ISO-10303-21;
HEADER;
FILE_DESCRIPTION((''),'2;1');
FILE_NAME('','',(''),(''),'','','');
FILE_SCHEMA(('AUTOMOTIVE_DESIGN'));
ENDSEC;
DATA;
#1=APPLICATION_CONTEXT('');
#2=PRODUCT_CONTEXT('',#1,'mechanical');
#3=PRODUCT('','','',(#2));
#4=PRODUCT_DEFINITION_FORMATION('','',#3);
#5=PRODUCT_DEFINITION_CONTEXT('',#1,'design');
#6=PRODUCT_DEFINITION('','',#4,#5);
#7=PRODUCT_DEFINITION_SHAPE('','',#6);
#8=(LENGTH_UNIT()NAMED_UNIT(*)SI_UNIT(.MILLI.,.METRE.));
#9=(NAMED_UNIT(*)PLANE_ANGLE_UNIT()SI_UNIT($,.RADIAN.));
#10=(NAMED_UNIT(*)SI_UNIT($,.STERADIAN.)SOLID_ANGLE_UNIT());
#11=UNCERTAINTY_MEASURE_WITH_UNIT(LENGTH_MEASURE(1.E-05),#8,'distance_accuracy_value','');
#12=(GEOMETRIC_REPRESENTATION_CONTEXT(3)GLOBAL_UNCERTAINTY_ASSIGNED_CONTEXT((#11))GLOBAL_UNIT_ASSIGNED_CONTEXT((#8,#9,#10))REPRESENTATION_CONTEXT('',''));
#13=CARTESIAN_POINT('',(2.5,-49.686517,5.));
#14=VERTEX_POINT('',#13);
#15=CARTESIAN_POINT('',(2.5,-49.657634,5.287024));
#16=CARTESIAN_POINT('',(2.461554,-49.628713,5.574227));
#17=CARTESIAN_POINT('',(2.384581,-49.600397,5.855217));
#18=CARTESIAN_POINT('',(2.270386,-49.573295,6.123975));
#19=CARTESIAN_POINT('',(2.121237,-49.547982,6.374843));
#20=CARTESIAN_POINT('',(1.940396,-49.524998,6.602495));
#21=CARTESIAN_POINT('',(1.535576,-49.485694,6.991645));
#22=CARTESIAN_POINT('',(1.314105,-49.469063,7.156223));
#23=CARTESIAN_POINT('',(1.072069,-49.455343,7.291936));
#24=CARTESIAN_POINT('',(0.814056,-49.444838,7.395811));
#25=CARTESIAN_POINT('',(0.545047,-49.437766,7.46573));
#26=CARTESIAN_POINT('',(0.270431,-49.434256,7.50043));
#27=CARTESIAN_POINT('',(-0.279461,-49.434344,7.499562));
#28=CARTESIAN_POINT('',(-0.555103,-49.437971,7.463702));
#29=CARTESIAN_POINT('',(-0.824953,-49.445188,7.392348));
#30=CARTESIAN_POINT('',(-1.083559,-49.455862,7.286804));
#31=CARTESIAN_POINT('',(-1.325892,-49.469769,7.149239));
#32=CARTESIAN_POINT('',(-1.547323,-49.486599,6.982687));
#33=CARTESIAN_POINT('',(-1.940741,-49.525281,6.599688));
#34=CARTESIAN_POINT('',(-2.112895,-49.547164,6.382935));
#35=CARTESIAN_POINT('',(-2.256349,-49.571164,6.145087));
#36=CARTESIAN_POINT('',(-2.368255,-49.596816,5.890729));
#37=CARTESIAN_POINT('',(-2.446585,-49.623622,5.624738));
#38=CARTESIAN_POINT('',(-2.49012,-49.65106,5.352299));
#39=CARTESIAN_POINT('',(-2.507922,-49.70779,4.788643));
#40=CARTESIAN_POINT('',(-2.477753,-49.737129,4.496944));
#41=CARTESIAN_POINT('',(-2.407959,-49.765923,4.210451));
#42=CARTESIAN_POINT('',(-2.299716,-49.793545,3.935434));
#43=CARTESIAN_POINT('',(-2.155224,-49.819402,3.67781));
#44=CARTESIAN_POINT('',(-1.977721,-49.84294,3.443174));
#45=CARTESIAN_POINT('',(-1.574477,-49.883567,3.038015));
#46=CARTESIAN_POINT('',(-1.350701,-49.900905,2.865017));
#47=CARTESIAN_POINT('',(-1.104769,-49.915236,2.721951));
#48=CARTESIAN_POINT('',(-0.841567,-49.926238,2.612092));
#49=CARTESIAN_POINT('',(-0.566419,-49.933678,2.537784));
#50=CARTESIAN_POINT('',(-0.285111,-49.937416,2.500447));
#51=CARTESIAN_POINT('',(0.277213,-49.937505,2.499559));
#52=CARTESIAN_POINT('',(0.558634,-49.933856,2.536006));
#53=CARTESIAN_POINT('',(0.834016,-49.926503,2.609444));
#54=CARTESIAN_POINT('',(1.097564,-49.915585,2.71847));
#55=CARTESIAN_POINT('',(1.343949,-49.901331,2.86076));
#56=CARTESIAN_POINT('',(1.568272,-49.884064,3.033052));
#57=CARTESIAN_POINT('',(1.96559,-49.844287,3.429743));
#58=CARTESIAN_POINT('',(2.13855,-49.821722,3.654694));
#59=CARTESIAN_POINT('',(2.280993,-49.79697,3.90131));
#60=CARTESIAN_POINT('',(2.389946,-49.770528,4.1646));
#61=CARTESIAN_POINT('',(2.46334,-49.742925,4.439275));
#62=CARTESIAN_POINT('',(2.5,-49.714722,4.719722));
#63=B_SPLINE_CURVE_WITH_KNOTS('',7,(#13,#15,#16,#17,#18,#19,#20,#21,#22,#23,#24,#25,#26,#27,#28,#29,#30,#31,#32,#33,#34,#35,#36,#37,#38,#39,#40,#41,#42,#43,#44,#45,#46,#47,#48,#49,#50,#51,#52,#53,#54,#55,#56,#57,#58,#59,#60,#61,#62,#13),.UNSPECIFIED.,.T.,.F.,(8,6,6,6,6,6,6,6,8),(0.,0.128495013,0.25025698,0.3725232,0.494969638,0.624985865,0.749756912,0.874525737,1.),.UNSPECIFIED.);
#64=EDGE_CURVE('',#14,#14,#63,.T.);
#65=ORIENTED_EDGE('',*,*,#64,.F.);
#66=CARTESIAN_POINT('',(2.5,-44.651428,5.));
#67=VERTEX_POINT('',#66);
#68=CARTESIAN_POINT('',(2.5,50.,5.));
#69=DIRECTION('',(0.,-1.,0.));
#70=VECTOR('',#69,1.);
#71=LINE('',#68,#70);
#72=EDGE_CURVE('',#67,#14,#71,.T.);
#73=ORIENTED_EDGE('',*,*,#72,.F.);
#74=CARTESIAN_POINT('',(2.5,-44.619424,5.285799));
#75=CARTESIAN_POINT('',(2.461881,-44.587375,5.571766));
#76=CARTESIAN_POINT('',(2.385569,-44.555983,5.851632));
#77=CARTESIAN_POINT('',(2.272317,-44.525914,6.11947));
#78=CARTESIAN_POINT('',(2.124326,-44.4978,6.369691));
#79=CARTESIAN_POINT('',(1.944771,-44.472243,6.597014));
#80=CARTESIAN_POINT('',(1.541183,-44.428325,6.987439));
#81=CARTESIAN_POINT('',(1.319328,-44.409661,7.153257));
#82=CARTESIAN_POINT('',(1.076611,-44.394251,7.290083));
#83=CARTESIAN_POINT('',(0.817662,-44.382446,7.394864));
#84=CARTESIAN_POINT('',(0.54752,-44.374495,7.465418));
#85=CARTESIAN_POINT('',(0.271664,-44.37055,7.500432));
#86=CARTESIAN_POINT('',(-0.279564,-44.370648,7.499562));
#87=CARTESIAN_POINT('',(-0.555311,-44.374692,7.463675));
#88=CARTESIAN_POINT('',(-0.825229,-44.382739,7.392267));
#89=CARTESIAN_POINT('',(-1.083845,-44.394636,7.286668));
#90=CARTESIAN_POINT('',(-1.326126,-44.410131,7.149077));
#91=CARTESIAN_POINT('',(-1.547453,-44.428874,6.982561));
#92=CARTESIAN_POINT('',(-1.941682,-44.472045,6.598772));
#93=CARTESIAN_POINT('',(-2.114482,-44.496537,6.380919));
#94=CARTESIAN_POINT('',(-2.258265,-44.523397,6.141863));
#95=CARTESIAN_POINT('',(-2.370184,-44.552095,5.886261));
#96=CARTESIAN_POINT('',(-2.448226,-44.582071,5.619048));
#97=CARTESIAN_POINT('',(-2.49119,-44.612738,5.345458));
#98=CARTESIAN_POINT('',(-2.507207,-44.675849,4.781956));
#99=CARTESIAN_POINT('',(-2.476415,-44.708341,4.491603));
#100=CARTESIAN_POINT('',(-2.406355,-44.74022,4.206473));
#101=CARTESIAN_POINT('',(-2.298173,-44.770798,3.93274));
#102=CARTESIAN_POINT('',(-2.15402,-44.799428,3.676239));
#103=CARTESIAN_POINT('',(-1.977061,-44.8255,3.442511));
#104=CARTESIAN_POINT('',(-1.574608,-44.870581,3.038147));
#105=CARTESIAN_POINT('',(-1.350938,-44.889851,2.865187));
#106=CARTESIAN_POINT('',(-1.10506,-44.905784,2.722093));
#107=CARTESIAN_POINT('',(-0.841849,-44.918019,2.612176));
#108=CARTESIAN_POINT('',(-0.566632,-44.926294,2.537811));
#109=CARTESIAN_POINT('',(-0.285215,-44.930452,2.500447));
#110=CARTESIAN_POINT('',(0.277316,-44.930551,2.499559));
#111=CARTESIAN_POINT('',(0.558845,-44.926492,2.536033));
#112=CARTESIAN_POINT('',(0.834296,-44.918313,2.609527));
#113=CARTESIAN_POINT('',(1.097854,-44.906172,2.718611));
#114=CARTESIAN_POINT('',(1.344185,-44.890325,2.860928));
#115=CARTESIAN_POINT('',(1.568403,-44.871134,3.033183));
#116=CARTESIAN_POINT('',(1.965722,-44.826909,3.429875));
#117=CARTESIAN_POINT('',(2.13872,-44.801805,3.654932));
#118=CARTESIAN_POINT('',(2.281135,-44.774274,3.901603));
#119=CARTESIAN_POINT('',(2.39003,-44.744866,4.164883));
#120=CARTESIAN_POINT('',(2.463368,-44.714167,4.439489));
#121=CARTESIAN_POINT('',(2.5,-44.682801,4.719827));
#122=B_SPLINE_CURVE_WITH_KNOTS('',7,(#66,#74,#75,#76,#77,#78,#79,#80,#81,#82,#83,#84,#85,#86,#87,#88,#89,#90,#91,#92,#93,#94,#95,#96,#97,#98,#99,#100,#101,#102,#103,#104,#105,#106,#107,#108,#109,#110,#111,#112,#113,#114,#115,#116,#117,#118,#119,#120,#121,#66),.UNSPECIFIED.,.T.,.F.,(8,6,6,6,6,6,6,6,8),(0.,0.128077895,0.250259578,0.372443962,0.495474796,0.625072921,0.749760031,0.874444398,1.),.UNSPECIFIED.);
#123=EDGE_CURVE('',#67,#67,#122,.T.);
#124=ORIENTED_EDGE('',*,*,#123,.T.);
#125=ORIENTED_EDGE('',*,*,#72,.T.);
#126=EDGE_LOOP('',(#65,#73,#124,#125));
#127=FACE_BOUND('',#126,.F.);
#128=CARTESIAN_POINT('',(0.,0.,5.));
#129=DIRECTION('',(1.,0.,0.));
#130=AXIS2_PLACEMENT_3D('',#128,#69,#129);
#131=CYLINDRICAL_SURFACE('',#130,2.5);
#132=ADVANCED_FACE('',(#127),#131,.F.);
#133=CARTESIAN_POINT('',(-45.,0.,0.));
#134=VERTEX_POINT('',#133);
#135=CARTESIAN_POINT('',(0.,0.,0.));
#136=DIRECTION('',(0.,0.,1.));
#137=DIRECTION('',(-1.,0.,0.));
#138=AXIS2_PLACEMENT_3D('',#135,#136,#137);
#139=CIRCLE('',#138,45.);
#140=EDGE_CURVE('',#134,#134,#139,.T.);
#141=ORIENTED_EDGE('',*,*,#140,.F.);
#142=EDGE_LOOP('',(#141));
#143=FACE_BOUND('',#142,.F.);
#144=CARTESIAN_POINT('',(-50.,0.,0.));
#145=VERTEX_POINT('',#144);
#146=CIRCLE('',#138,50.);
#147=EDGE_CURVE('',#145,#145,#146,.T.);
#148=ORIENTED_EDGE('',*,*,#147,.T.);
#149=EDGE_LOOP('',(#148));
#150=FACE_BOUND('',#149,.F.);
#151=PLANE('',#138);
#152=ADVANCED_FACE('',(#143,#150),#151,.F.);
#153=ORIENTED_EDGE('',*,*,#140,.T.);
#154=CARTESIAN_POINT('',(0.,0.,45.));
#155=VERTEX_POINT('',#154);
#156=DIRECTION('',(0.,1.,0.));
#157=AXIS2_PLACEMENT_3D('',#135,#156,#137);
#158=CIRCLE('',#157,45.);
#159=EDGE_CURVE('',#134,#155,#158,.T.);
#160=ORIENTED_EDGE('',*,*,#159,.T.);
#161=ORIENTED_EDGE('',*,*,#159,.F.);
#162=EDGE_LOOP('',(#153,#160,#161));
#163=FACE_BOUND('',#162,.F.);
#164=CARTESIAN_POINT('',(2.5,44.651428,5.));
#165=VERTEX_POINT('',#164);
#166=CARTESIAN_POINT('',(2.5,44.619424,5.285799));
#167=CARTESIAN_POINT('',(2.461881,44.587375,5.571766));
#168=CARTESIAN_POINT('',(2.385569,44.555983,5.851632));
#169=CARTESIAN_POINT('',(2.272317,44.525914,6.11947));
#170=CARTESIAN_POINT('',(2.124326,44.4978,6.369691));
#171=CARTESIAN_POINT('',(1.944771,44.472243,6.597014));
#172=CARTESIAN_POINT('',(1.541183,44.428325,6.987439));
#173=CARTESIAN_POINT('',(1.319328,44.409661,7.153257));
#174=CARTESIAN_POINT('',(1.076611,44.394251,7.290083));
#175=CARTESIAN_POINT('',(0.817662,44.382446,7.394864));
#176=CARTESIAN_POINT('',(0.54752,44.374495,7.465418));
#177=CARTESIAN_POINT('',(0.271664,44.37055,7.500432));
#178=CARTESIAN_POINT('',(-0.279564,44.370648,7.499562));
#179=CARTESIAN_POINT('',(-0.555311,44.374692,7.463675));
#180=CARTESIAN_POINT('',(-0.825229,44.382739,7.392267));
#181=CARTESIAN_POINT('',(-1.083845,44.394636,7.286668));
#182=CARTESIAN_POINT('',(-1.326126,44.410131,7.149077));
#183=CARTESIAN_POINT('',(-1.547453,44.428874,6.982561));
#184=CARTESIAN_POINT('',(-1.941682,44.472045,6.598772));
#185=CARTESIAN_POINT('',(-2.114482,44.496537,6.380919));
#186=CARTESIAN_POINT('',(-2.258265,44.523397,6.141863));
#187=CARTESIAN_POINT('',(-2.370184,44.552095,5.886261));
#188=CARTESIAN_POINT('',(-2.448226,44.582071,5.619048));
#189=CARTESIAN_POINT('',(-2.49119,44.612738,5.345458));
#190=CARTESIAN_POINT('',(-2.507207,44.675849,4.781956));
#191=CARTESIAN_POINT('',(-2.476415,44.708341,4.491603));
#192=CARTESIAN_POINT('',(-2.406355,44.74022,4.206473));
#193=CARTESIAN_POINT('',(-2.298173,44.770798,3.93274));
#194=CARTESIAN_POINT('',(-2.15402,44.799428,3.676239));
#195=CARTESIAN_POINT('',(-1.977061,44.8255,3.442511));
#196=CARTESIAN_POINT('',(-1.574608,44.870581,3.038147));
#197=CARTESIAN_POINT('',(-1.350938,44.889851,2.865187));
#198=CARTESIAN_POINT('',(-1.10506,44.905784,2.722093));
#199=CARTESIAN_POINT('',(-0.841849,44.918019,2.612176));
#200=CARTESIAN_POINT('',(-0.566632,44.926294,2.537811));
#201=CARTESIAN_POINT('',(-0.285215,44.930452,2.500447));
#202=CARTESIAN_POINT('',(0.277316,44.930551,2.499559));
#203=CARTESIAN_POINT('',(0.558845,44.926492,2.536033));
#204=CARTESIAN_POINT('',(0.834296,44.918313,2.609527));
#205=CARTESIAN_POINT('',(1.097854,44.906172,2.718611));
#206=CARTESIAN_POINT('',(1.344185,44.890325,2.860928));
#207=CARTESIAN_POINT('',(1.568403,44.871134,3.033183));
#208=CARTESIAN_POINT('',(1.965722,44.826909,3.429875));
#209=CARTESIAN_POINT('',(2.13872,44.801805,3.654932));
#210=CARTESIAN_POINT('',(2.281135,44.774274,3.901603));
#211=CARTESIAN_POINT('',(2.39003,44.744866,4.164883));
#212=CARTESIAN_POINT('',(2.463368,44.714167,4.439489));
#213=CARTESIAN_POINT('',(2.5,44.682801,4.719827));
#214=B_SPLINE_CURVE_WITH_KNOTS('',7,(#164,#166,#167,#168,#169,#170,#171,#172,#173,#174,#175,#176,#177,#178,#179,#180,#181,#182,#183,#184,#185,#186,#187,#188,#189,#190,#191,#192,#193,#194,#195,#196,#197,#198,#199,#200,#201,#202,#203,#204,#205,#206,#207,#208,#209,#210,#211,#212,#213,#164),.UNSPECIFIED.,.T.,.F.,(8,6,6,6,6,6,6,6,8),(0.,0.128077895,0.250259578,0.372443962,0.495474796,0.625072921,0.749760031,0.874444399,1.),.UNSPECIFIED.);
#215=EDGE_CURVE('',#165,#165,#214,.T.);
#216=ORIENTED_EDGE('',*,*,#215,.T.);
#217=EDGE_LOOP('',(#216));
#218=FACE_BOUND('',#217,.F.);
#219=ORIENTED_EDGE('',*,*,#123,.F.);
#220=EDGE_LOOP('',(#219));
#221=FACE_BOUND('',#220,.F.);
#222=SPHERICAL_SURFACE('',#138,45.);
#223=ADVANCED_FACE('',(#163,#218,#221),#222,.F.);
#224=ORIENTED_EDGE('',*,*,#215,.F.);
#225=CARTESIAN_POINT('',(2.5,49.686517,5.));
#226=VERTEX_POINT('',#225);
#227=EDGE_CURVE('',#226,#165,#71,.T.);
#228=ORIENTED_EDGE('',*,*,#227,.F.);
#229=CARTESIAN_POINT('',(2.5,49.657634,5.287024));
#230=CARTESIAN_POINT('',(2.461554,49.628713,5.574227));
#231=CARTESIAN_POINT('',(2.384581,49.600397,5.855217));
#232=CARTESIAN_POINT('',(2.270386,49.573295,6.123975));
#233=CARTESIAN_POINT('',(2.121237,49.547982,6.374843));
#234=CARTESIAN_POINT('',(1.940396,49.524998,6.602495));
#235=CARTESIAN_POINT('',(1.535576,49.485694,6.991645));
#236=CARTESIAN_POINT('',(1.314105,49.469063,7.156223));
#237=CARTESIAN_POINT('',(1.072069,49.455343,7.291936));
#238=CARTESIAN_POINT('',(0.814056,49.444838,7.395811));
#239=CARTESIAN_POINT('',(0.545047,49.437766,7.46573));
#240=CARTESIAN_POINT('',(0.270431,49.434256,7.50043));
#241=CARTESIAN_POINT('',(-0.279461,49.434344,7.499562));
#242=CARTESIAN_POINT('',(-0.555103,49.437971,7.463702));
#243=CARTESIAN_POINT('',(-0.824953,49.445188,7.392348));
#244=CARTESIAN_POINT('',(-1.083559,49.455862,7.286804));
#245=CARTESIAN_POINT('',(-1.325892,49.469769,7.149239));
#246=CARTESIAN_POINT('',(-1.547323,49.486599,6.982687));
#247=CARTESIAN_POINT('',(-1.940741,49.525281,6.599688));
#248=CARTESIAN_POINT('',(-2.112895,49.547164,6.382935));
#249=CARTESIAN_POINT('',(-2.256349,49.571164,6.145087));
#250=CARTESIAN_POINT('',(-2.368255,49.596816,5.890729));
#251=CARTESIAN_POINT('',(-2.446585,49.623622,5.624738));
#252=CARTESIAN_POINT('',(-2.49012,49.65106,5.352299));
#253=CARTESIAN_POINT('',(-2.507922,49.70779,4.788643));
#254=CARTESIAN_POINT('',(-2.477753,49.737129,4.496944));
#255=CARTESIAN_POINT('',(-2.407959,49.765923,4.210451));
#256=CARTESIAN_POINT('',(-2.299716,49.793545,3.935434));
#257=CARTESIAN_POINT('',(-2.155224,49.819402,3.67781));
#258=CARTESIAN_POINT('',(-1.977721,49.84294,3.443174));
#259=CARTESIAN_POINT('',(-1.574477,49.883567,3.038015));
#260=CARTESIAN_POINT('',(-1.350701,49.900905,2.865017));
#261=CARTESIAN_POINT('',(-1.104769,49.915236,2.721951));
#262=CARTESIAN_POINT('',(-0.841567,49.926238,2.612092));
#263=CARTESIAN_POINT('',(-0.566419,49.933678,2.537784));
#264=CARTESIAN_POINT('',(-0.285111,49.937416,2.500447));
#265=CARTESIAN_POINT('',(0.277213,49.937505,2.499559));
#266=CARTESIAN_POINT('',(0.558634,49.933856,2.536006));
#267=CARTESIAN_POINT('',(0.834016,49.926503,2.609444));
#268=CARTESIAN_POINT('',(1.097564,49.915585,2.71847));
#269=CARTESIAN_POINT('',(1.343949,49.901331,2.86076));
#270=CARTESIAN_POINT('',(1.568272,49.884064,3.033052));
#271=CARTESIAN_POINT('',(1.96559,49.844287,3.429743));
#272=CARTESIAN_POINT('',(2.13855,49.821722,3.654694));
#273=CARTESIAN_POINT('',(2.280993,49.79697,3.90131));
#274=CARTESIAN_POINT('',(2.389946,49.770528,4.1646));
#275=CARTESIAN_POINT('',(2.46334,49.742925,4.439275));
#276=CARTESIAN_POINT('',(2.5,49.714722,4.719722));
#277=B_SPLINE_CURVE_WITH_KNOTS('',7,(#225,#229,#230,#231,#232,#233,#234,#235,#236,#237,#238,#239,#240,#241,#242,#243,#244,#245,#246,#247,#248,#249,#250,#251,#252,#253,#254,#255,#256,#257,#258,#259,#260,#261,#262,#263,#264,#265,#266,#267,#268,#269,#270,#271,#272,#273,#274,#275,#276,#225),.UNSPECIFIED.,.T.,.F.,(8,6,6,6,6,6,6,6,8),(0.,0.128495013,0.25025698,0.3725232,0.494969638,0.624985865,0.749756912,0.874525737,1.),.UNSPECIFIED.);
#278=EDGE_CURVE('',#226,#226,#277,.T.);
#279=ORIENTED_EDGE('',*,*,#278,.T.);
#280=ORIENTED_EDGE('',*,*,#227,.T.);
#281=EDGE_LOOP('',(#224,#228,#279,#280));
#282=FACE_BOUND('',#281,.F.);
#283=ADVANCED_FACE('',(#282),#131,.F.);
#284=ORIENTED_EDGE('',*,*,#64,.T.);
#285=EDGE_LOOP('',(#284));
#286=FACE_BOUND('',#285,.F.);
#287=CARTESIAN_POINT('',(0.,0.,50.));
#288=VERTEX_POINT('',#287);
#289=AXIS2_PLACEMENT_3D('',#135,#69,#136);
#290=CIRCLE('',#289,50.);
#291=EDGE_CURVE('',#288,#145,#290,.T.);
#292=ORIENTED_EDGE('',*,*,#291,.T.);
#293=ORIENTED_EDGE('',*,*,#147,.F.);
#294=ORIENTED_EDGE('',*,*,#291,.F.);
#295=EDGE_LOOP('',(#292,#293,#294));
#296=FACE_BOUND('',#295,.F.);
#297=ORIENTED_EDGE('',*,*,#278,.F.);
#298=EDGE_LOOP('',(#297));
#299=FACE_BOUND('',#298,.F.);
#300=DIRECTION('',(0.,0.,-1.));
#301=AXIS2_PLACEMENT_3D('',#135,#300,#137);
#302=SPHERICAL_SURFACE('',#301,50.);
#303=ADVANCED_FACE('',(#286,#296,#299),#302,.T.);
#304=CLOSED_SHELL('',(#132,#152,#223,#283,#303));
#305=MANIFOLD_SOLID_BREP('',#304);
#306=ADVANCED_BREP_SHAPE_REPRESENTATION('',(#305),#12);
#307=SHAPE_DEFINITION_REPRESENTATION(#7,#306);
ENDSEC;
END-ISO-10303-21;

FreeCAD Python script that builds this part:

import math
import FreeCAD as App
import Part
import Sketcher

V = App.Vector

doc = App.newDocument("Part")
body = doc.addObject("PartDesign::Body", "Body")

# Sketch on XZ plane
sketch1 = doc.addObject("Sketcher::SketchObject", "Sketch")
body.addObject(sketch1)
sketch1.AttachmentSupport = (doc.XZ_Plane, [""])
sketch1.MapMode = "FlatFace"
sketch1.addGeometry(Part.LineSegment(V(0, 45, 0), V(0, 50, 0)), False)
sketch1.addGeometry(Part.ArcOfCircle(Part.Circle(V(0, 0, 0), V(0, 0, 1), 50), math.radians(90), math.radians(180)), False)
sketch1.addGeometry(Part.LineSegment(V(-50, 0, 0), V(-45, 0, 0)), False)
sketch1.addGeometry(Part.ArcOfCircle(Part.Circle(V(0, 0, 0), V(0, 0, 1), 45), math.radians(90), math.radians(180)), False)
sketch1.addConstraint(Sketcher.Constraint("Coincident", 0, 2, 1, 1))
sketch1.addConstraint(Sketcher.Constraint("Coincident", 1, 2, 2, 1))
sketch1.addConstraint(Sketcher.Constraint("Coincident", 2, 2, 3, 2))
sketch1.addConstraint(Sketcher.Constraint("Coincident", 3, 1, 0, 1))
sketch1.addConstraint(Sketcher.Constraint("Vertical", 0))
sketch1.addConstraint(Sketcher.Constraint("Horizontal", 2))
sketch1.addConstraint(Sketcher.Constraint("Coincident", 1, 3, -1, 1))
sketch1.addConstraint(Sketcher.Constraint("Coincident", 3, 3, -1, 1))
sketch1.addConstraint(Sketcher.Constraint("PointOnObject", 0, 2, -2))
sketch1.addConstraint(Sketcher.Constraint("PointOnObject", 1, 2, -1))
sketch1.addConstraint(Sketcher.Constraint("Radius", 1, 50.0))
sketch1.addConstraint(Sketcher.Constraint("Radius", 3, 45.0))
revolution = doc.addObject("PartDesign::Revolution", "Revolution")
body.addObject(revolution)
revolution.Profile = sketch1
revolution.ReferenceAxis = (sketch1, ["V_Axis"])
revolution.Angle = 360

# Sketch on XZ plane
sketch2 = doc.addObject("Sketcher::SketchObject", "Sketch001")
body.addObject(sketch2)
sketch2.AttachmentSupport = (doc.XZ_Plane, [""])
sketch2.MapMode = "FlatFace"
sketch2.addGeometry(Part.Circle(V(0, 5, 0), V(0, 0, 1), 2.5), False)
sketch2.addConstraint(Sketcher.Constraint("PointOnObject", 0, 3, -2))
sketch2.addConstraint(Sketcher.Constraint("Diameter", 0, 5.0))
sketch2.addConstraint(Sketcher.Constraint("DistanceY", -1, 1, 0, 3, 5.0))
pocket1 = doc.addObject("PartDesign::Pocket", "Pocket")
body.addObject(pocket1)
pocket1.Profile = sketch2
pocket1.Length = 100
pocket1.Midplane = True

doc.recompute()
